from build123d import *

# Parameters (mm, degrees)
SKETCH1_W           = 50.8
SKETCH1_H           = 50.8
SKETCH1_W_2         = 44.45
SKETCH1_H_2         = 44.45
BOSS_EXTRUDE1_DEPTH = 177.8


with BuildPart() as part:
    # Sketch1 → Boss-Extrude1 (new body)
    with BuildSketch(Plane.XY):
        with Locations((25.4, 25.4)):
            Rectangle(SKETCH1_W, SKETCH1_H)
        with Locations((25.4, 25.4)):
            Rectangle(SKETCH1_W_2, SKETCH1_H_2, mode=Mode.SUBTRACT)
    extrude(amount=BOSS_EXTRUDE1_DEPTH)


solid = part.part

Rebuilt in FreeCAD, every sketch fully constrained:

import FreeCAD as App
import Part
import Sketcher

V = App.Vector
Q = App.Units.Quantity


def add_polygon(sketch, points):
    """Adds a closed chain of lines whose ends are joined by coincident constraints."""
    first, n = sketch.GeometryCount, len(points)
    for a, b in zip(points, points[1:] + points[:1]):
        sketch.addGeometry(Part.LineSegment(App.Vector(*a, 0), App.Vector(*b, 0)), False)
    for i in range(n):
        sketch.addConstraint(Sketcher.Constraint("Coincident", first + i, 2, first + (i + 1) % n, 1))

doc = App.newDocument("Part")
body = doc.addObject("PartDesign::Body", "Body")

sketch1 = doc.addObject("Sketcher::SketchObject", "Sketch")
body.addObject(sketch1)
sketch1.AttachmentSupport = (doc.XY_Plane, [""])
sketch1.MapMode = "FlatFace"
add_polygon(sketch1, [(0, 50.8), (0, 0), (50.8, 0), (50.8, 50.8)])
add_polygon(sketch1, [(47.625, 3.175), (3.175, 3.175), (3.175, 47.625), (47.625, 47.625)])
sketch1.addConstraint([
    Sketcher.Constraint("Vertical", 0),
    Sketcher.Constraint("Horizontal", 1),
    Sketcher.Constraint("Vertical", 2),
    Sketcher.Constraint("Horizontal", 3),
    Sketcher.Constraint("Horizontal", 4),
    Sketcher.Constraint("Vertical", 5),
    Sketcher.Constraint("Horizontal", 6),
    Sketcher.Constraint("Vertical", 7),
    Sketcher.Constraint("Coincident", 0, 2, -1, 1),
    Sketcher.Constraint("Equal", 3, 0),
    Sketcher.Constraint("Equal", 6, 5),
    Sketcher.Constraint("DistanceX", 1, 1, 1, 2, Q("2 in")),
    Sketcher.Constraint("DistanceX", 4, 2, 4, 1, Q("1.75 in")),
    Sketcher.Constraint("DistanceX", -1, 1, 4, 2, Q("0.125 in")),
    Sketcher.Constraint("DistanceY", -1, 1, 4, 2, Q("0.125 in")),
])
pad1 = doc.addObject("PartDesign::Pad", "Pad")
body.addObject(pad1)
pad1.Profile = sketch1
pad1.Length = Q("7 in")

doc.recompute()
